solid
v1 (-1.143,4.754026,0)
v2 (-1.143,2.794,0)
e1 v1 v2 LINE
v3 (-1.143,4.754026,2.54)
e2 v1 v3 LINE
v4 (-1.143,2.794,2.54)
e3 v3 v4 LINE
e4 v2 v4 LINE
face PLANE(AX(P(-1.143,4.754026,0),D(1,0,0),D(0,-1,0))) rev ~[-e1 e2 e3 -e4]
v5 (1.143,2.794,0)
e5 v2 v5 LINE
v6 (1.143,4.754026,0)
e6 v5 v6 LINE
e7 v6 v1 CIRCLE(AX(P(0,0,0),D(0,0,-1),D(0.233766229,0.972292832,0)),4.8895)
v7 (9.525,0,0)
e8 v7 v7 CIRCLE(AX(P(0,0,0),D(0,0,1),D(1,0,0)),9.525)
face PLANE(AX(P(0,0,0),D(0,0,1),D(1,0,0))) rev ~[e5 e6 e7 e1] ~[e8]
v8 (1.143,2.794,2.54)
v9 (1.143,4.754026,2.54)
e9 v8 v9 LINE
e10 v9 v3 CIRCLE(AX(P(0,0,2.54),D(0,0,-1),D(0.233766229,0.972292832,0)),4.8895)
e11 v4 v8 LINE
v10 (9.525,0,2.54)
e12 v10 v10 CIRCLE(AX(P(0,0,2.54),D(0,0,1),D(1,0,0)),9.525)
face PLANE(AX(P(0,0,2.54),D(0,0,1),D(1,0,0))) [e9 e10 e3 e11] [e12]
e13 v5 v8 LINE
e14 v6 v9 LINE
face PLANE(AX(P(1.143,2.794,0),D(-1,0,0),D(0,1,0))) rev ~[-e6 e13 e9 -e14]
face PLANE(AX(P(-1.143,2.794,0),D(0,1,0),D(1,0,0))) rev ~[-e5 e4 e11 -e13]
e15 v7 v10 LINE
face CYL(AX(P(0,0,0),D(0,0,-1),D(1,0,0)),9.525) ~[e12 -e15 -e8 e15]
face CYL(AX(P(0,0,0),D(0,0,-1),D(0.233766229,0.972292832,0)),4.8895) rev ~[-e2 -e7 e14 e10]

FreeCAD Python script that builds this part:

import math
import FreeCAD as App
import Part
import Sketcher
from FreeCAD import Vector
Q = App.Units.Quantity

doc = App.newDocument("Part")
body = doc.addObject("PartDesign::Body", "Body")

# Sketch on XY plane
sketch1 = doc.addObject("Sketcher::SketchObject", "Sketch")
body.addObject(sketch1)
sketch1.AttachmentSupport = (doc.XY_Plane, [""])
sketch1.MapMode = "FlatFace"
sketch1.addGeometry(Part.Circle(Vector(0, 0, 0), Vector(0, 0, 1), 9.5), False)
sketch1.addGeometry(Part.LineSegment(Vector(1.1, 2.8, 0), Vector(1.1, 4.8, 0)), False)
sketch1.addGeometry(Part.ArcOfCircle(Part.Circle(Vector(0, 0, 0), Vector(0, 0, 1), 4.9), math.radians(104), math.radians(436)), False)
sketch1.addGeometry(Part.LineSegment(Vector(-1.1, 4.8, 0), Vector(-1.1, 2.8, 0)), False)
sketch1.addGeometry(Part.LineSegment(Vector(-1.1, 2.8, 0), Vector(1.1, 2.8, 0)), False)
sketch1.addConstraint(Sketcher.Constraint("Coincident", 1, 2, 2, 2))
sketch1.addConstraint(Sketcher.Constraint("Coincident", 2, 1, 3, 1))
sketch1.addConstraint(Sketcher.Constraint("Coincident", 3, 2, 4, 1))
sketch1.addConstraint(Sketcher.Constraint("Coincident", 4, 2, 1, 1))
sketch1.addConstraint(Sketcher.Constraint("Vertical", 1))
sketch1.addConstraint(Sketcher.Constraint("Vertical", 3))
sketch1.addConstraint(Sketcher.Constraint("Horizontal", 4))
sketch1.addConstraint(Sketcher.Constraint("Coincident", 0, 3, -1, 1))
sketch1.addConstraint(Sketcher.Constraint("Coincident", 2, 3, -1, 1))
sketch1.addConstraint(Sketcher.Constraint("Horizontal", 1, 2, 2, 1))
sketch1.addConstraint(Sketcher.Constraint("Diameter", 0, Q("0.75 in")))
sketch1.addConstraint(Sketcher.Constraint("DistanceX", 4, 1, 4, 2, Q("0.09 in")))
sketch1.addConstraint(Sketcher.Constraint("Radius", 2, Q("0.1925 in")))
sketch1.addConstraint(Sketcher.Constraint("DistanceY", -1, 1, 3, 2, Q("0.11 in")))
pad1 = doc.addObject("PartDesign::Pad", "Pad")
body.addObject(pad1)
pad1.Profile = sketch1
pad1.Length = Q("0.1 in")

doc.recompute()
